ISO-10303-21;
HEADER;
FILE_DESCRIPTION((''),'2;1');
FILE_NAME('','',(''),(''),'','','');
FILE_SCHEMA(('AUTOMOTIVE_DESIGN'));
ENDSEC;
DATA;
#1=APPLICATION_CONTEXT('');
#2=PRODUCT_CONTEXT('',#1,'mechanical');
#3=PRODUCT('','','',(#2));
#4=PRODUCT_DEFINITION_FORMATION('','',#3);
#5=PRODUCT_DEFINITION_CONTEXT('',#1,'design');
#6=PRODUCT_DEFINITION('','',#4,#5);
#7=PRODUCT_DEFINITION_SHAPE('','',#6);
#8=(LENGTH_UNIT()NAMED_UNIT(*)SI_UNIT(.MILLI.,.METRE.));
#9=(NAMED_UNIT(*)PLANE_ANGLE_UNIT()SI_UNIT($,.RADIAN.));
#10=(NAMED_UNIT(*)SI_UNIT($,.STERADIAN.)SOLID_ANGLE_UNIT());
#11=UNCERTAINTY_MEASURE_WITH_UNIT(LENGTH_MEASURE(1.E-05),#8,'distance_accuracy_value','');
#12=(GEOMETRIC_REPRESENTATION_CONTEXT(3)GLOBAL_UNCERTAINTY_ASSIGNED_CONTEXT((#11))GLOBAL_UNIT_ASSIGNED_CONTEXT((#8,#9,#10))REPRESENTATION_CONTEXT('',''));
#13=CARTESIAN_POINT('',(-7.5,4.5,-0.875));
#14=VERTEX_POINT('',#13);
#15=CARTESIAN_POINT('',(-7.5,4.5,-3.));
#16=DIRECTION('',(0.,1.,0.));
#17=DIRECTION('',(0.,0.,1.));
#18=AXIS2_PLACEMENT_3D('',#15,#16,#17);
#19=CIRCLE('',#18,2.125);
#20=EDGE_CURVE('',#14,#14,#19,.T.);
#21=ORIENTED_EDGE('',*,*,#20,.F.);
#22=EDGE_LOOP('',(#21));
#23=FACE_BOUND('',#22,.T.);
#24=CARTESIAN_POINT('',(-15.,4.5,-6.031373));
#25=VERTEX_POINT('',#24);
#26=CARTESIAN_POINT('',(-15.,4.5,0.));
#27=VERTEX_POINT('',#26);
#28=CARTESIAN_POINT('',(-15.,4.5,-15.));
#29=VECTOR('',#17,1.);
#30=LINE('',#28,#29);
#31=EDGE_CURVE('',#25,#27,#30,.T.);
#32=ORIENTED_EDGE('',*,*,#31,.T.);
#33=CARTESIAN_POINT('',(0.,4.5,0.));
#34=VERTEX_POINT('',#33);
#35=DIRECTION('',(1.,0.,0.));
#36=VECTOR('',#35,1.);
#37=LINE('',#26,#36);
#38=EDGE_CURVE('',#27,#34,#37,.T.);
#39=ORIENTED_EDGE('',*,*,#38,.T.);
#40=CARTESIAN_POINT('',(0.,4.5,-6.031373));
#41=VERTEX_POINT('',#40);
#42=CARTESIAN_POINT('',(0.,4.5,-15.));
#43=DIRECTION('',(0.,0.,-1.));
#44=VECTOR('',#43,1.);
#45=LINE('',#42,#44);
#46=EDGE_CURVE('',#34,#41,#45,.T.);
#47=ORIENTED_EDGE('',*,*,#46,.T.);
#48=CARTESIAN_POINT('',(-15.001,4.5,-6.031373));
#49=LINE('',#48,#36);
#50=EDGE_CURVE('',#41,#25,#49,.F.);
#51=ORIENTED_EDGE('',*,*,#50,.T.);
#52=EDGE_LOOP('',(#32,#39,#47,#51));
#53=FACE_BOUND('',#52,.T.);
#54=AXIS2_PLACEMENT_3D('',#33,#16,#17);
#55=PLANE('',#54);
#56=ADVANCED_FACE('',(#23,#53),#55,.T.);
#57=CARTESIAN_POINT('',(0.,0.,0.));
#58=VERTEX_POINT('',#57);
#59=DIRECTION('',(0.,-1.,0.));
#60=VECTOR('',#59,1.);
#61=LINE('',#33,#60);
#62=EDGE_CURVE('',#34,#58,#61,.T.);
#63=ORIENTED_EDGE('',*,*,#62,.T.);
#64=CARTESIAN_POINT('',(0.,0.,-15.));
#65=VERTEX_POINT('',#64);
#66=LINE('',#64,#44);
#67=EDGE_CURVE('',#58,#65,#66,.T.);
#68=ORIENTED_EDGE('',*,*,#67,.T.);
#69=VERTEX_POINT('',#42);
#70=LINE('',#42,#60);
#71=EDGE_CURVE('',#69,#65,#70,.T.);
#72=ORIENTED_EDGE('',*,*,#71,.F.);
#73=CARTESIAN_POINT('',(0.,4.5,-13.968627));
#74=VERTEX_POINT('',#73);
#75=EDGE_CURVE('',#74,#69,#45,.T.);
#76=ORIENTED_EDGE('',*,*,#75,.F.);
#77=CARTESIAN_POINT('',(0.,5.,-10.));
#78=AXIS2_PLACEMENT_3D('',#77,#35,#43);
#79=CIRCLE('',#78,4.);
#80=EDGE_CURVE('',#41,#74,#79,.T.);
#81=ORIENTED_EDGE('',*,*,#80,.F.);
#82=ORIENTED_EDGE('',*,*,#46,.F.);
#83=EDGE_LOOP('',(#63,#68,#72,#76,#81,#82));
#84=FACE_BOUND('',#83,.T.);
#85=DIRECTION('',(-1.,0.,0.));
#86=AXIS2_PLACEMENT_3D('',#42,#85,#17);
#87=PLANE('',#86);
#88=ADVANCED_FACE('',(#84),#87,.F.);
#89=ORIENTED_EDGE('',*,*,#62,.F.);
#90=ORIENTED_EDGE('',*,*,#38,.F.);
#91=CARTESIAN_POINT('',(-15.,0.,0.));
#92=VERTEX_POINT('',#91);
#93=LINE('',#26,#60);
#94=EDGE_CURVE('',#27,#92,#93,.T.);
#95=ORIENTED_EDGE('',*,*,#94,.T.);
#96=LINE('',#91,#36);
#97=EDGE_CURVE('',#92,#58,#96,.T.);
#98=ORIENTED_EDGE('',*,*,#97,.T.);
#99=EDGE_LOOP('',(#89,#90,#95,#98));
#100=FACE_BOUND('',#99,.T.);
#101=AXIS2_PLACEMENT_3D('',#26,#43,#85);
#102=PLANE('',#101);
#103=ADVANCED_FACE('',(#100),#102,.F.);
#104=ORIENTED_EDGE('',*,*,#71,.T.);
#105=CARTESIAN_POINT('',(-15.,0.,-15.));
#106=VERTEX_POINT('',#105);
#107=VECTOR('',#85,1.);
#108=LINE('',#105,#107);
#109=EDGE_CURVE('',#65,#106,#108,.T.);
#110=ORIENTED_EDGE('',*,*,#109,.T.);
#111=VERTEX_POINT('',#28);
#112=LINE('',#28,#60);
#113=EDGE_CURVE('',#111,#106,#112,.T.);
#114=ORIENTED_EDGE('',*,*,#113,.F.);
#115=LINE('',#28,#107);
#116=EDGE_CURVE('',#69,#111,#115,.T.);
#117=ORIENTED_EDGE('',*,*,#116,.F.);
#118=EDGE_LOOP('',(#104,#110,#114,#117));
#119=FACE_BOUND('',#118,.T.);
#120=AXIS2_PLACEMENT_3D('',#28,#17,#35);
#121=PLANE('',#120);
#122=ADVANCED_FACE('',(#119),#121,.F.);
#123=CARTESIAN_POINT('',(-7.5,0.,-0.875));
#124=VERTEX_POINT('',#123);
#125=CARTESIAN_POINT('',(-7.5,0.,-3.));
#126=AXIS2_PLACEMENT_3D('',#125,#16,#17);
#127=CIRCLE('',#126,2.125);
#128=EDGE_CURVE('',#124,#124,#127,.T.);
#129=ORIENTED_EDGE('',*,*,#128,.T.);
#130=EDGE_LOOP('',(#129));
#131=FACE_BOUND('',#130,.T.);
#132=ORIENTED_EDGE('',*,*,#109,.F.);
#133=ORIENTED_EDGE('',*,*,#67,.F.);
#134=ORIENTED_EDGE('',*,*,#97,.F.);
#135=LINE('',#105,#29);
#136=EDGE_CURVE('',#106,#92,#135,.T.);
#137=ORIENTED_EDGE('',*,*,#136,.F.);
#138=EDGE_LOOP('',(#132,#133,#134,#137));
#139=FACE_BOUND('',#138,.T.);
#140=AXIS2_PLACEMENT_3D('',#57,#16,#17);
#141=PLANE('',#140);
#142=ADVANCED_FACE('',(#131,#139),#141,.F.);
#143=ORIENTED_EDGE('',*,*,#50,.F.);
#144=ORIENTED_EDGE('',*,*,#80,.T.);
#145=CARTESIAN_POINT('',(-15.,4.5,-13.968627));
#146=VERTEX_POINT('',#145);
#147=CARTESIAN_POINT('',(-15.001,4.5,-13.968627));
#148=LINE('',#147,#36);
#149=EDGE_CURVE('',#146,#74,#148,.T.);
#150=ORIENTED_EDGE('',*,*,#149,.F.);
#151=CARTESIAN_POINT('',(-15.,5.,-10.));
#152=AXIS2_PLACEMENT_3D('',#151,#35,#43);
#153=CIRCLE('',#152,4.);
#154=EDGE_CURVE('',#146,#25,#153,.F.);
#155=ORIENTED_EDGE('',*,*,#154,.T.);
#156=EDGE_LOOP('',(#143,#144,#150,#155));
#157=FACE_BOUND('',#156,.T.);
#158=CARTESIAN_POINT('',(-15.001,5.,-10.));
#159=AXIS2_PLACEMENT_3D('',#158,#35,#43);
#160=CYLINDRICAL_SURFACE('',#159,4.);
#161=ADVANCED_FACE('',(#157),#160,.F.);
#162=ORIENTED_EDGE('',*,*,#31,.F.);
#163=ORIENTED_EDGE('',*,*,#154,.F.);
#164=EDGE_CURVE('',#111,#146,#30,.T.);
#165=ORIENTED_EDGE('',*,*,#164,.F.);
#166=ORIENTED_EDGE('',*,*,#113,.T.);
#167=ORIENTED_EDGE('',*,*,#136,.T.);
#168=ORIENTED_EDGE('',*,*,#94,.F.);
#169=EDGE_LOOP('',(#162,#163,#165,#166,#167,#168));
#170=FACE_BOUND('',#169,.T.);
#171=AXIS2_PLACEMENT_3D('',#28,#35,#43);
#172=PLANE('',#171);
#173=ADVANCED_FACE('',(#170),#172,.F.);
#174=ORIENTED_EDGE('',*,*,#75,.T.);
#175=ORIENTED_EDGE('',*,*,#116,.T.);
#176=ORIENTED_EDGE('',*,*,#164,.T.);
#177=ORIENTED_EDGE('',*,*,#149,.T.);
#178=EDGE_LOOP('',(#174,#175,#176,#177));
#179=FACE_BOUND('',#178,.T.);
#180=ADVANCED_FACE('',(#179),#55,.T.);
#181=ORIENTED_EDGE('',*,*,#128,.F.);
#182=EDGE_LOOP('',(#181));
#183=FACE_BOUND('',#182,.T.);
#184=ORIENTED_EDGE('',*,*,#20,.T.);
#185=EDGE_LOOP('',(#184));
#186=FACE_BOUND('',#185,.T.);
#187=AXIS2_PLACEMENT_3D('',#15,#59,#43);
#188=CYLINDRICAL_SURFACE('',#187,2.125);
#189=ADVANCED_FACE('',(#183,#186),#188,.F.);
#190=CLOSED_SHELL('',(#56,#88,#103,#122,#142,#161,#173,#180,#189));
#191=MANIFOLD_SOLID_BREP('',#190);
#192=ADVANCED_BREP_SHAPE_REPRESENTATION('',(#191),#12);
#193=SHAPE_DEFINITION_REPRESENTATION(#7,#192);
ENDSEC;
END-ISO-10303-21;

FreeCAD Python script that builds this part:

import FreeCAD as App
import Part
import Sketcher
from FreeCAD import Vector
Q = App.Units.Quantity


def add_polygon(sketch, points):
    """Adds a closed chain of lines whose ends are joined by coincident constraints."""
    first, n = sketch.GeometryCount, len(points)
    for a, b in zip(points, points[1:] + points[:1]):
        sketch.addGeometry(Part.LineSegment(App.Vector(*a, 0), App.Vector(*b, 0)), False)
    for i in range(n):
        sketch.addConstraint(Sketcher.Constraint("Coincident", first + i, 2, first + (i + 1) % n, 1))

doc = App.newDocument("Part")
body = doc.addObject("PartDesign::Body", "Body")

# Sketch on XZ plane
sketch1 = body.newObject("Sketcher::SketchObject", "Sketch")
sketch1.AttachmentSupport = (doc.getObject("XZ_Plane"), [""])
sketch1.MapMode = "FlatFace"
add_polygon(sketch1, [(-15, -15), (-15, 0), (0, 0), (0, -15)])  # lines 0-3
sketch1.addGeometry(Part.Circle(Vector(-7.5, -3, 0), Vector(0, 0, 1), 2.1), False)  # 4
sketch1.addConstraint(Sketcher.Constraint("Vertical", 0))
sketch1.addConstraint(Sketcher.Constraint("Horizontal", 1))
sketch1.addConstraint(Sketcher.Constraint("Vertical", 2))
sketch1.addConstraint(Sketcher.Constraint("Horizontal", 3))
sketch1.addConstraint(Sketcher.Constraint("Coincident", 1, 2, -1, 1))
sketch1.addConstraint(Sketcher.Constraint("Equal", 3, 0))
sketch1.addConstraint(Sketcher.Constraint("Diameter", 4, Q("4.25 mm")))
sketch1.addConstraint(Sketcher.Constraint("DistanceX", 1, 1, 1, 2, Q("15 mm")))
sketch1.addConstraint(Sketcher.Constraint("DistanceY", 4, 3, -1, 1, Q("3 mm")))
sketch1.addConstraint(Sketcher.Constraint("DistanceX", 4, 3, -1, 1, Q("7.5 mm")))
pad1 = body.newObject("PartDesign::Pad", "Pad")
pad1.Profile = sketch1
pad1.Length = 4.5
pad1.Reversed = True

# Sketch on YZ plane
sketch2 = body.newObject("Sketcher::SketchObject", "Sketch001")
sketch2.AttachmentSupport = (doc.getObject("YZ_Plane"), [""])
sketch2.MapMode = "FlatFace"
sketch2.addGeometry(Part.Circle(Vector(5, -10, 0), Vector(0, 0, 1), 4), False)
sketch2.addConstraint(Sketcher.Constraint("Diameter", 0, Q("8 mm")))
sketch2.addConstraint(Sketcher.Constraint("DistanceX", -1, 1, 0, 3, Q("5 mm")))
sketch2.addConstraint(Sketcher.Constraint("DistanceY", 0, 3, -1, 1, Q("10 mm")))
pocket1 = body.newObject("PartDesign::Pocket", "Pocket")
pocket1.Profile = sketch2
pocket1.Length = 15

doc.recompute()
